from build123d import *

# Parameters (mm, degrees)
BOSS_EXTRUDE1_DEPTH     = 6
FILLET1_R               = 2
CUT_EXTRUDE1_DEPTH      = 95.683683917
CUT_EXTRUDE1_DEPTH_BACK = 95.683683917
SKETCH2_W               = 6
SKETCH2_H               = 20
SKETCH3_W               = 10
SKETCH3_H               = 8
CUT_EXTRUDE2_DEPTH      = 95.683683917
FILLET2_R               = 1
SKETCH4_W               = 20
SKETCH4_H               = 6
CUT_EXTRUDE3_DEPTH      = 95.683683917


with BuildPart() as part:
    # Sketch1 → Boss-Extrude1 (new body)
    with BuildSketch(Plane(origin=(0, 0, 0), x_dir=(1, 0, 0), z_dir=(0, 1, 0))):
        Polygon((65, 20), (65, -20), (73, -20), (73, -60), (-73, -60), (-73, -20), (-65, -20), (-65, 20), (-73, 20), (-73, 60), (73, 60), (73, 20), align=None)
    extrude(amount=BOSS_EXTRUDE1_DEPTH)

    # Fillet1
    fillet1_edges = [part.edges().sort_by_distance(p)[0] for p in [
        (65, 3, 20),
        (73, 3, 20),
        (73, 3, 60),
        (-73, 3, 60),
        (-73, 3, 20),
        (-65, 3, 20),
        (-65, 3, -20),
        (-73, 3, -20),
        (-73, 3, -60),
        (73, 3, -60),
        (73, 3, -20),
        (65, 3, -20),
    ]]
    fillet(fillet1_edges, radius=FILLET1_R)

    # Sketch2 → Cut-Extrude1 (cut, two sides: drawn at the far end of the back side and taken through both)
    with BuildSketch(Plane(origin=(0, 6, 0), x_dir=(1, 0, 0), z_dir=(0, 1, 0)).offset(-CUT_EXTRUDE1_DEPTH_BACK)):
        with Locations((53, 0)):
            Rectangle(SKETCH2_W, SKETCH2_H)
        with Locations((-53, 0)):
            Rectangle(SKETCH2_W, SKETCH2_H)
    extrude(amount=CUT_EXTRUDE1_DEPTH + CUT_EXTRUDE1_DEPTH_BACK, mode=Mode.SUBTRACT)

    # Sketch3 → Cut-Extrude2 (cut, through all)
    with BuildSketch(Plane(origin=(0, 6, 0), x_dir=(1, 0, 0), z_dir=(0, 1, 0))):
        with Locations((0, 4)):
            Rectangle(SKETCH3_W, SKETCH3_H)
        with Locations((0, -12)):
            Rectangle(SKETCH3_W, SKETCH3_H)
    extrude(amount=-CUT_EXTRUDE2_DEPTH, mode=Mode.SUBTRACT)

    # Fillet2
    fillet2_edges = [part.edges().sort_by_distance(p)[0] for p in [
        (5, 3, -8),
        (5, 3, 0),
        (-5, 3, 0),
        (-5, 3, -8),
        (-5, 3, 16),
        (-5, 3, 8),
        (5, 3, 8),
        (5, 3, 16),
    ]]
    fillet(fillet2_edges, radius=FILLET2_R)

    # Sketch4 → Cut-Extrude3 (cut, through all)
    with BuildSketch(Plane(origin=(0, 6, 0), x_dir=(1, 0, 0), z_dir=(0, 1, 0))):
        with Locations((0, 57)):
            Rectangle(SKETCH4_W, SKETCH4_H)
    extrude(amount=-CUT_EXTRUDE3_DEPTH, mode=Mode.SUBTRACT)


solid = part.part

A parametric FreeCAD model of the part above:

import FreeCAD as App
import Part
import Sketcher

V = App.Vector
Q = App.Units.Quantity


def edges_at(feature, points):
    """Names of the edges that pass closest to the given points."""
    edges = feature.Shape.Edges
    near = lambda p: min(range(len(edges)), key=lambda i: edges[i].distToShape(Part.Vertex(*p))[0])
    return sorted({f"Edge{near(p) + 1}" for p in points})


def add_polygon(sketch, points):
    """Adds a closed chain of lines whose ends are joined by coincident constraints."""
    first, n = sketch.GeometryCount, len(points)
    for a, b in zip(points, points[1:] + points[:1]):
        sketch.addGeometry(Part.LineSegment(App.Vector(*a, 0), App.Vector(*b, 0)), False)
    for i in range(n):
        sketch.addConstraint(Sketcher.Constraint("Coincident", first + i, 2, first + (i + 1) % n, 1))

doc = App.newDocument("Part")
params = doc.addObject("Spreadsheet::Sheet", "Params")
for row, (alias, value) in enumerate([
    ("sketch1_width", "8 mm"),
    ("sketch1_width2", "146 mm"),
    ("sketch1_height", "40 mm"),
    ("pad1_length", "6 mm"),
    ("fillet_radius", "2 mm"),
    ("sketch2_width", "6 mm"),
    ("sketch2_height", "20 mm"),
    ("sketch3_width", "10 mm"),
    ("sketch3_height", "8 mm"),
    ("fillet2_radius", "1 mm"),
    ("sketch4_width", "20 mm"),
    ("sketch4_height", "6 mm"),
], start=1):
    params.set(f"A{row}", alias)
    params.set(f"B{row}", "=" + value)
    params.setAlias(f"B{row}", alias)

body = doc.addObject("PartDesign::Body", "Body")

# Sketch on XZ plane
sketch1 = body.newObject("Sketcher::SketchObject", "Sketch")
sketch1.AttachmentSupport = (doc.getObject("XZ_Plane"), [""])
sketch1.MapMode = "FlatFace"
add_polygon(sketch1, [(65, 20), (65, -20), (73, -20), (73, -60), (-73, -60), (-73, -20), (-65, -20), (-65, 20), (-73, 20), (-73, 60), (73, 60), (73, 20)])  # lines 0-11
sketch1.addConstraint([
    Sketcher.Constraint("Vertical", 0),
    Sketcher.Constraint("Horizontal", 1),
    Sketcher.Constraint("Vertical", 2),
    Sketcher.Constraint("Horizontal", 3),
    Sketcher.Constraint("Vertical", 4),
    Sketcher.Constraint("Horizontal", 5),
    Sketcher.Constraint("Vertical", 6),
    Sketcher.Constraint("Horizontal", 7),
    Sketcher.Constraint("Vertical", 8),
    Sketcher.Constraint("Horizontal", 9),
    Sketcher.Constraint("Vertical", 10),
    Sketcher.Constraint("Horizontal", 11),
    Sketcher.Constraint("Symmetric", 0, 2, 6, 2, -1, 1),
    Sketcher.Constraint("Symmetric", 2, 2, 8, 2, -1, 1),
    Sketcher.Constraint("Symmetric", 4, 2, 10, 2, -1, 1),
    Sketcher.Constraint("Symmetric", 1, 2, 4, 2, -2),
    Sketcher.Constraint("Equal", 0, 2),
    Sketcher.Constraint("DistanceX", 1, 1, 1, 2, Q("8 mm")),
    Sketcher.Constraint("DistanceX", 3, 2, 3, 1, Q("146 mm")),
    Sketcher.Constraint("DistanceY", 0, 2, 0, 1, Q("40 mm")),
])
sketch1.setExpression("Constraints[29]", "Params.sketch1_width")
sketch1.setExpression("Constraints[30]", "Params.sketch1_width2")
sketch1.setExpression("Constraints[31]", "Params.sketch1_height")
pad1 = body.newObject("PartDesign::Pad", "Pad")
pad1.Profile = sketch1
pad1.setExpression("Length", "Params.pad1_length")
pad1.Reversed = True
doc.recompute()

fillet = body.newObject("PartDesign::Fillet", "Fillet")
fillet.Base = (pad1, edges_at(pad1, [
    (65, 3, 20),
    (73, 3, 20),
    (73, 3, 60),
    (-73, 3, 60),
    (-73, 3, 20),
    (-65, 3, 20),
    (-65, 3, -20),
    (-73, 3, -20),
    (-73, 3, -60),
    (73, 3, -60),
    (73, 3, -20),
    (65, 3, -20),
]))
fillet.setExpression("Radius", "Params.fillet_radius")

# Sketch on XZ plane
sketch2 = body.newObject("Sketcher::SketchObject", "Sketch001")
sketch2.AttachmentSupport = (doc.getObject("XZ_Plane"), [""])
sketch2.MapMode = "FlatFace"
sketch2.AttachmentOffset = App.Placement(V(0, 0, -6), App.Rotation())
add_polygon(sketch2, [(50, -10), (50, 10), (56, 10), (56, -10)])  # lines 0-3
add_polygon(sketch2, [(-56, -10), (-56, 10), (-50, 10), (-50, -10)])  # lines 4-7
sketch2.addConstraint([
    Sketcher.Constraint("Vertical", 0),
    Sketcher.Constraint("Horizontal", 1),
    Sketcher.Constraint("Vertical", 2),
    Sketcher.Constraint("Horizontal", 3),
    Sketcher.Constraint("Vertical", 4),
    Sketcher.Constraint("Horizontal", 5),
    Sketcher.Constraint("Vertical", 6),
    Sketcher.Constraint("Horizontal", 7),
    Sketcher.Constraint("Symmetric", 2, 2, 4, 2, -1, 1),
    Sketcher.Constraint("Symmetric", 0, 2, 6, 2, -1, 1),
    Sketcher.Constraint("Horizontal", 1, 2, 4, 2),
    Sketcher.Constraint("DistanceX", 1, 1, 1, 2, Q("6 mm")),
    Sketcher.Constraint("DistanceY", 0, 1, 0, 2, Q("20 mm")),
    Sketcher.Constraint("DistanceX", -1, 1, 0, 2, Q("50 mm")),
])
sketch2.setExpression("Constraints[19]", "Params.sketch2_width")
sketch2.setExpression("Constraints[20]", "Params.sketch2_height")
pocket1 = body.newObject("PartDesign::Pocket", "Pocket")
pocket1.Profile = sketch2
pocket1.Type = "ThroughAll"
pocket1.Midplane = True

# Sketch on XZ plane
sketch3 = body.newObject("Sketcher::SketchObject", "Sketch002")
sketch3.AttachmentSupport = (doc.getObject("XZ_Plane"), [""])
sketch3.MapMode = "FlatFace"
sketch3.AttachmentOffset = App.Placement(V(0, 0, -6), App.Rotation())
add_polygon(sketch3, [(-5, -8), (-5, 0), (5, 0), (5, -8)])  # lines 0-3
add_polygon(sketch3, [(-5, 8), (-5, 16), (5, 16), (5, 8)])  # lines 4-7
sketch3.addConstraint([
    Sketcher.Constraint("Vertical", 0),
    Sketcher.Constraint("Horizontal", 1),
    Sketcher.Constraint("Vertical", 2),
    Sketcher.Constraint("Horizontal", 3),
    Sketcher.Constraint("Vertical", 4),
    Sketcher.Constraint("Horizontal", 5),
    Sketcher.Constraint("Vertical", 6),
    Sketcher.Constraint("Horizontal", 7),
    Sketcher.Constraint("Symmetric", 0, 2, 1, 2, -1, 1),
    Sketcher.Constraint("Symmetric", 3, 2, 6, 2, -1, 1),
    Sketcher.Constraint("Vertical", 3, 2, 4, 2),
    Sketcher.Constraint("Equal", 2, 4),
    Sketcher.Constraint("DistanceX", 1, 1, 1, 2, Q("10 mm")),
    Sketcher.Constraint("DistanceY", 0, 1, 0, 2, Q("8 mm")),
])
sketch3.setExpression("Constraints[20]", "Params.sketch3_width")
sketch3.setExpression("Constraints[21]", "Params.sketch3_height")
pocket2 = body.newObject("PartDesign::Pocket", "Pocket001")
pocket2.Profile = sketch3
pocket2.Type = "ThroughAll"
pocket2.Reversed = True
doc.recompute()

fillet2 = body.newObject("PartDesign::Fillet", "Fillet001")
fillet2.Base = (pocket2, edges_at(pocket2, [
    (5, 3, -8),
    (5, 3, 0),
    (-5, 3, 0),
    (-5, 3, -8),
    (-5, 3, 16),
    (-5, 3, 8),
    (5, 3, 8),
    (5, 3, 16),
]))
fillet2.setExpression("Radius", "Params.fillet2_radius")

# Sketch on XZ plane
sketch4 = body.newObject("Sketcher::SketchObject", "Sketch003")
sketch4.AttachmentSupport = (doc.getObject("XZ_Plane"), [""])
sketch4.MapMode = "FlatFace"
sketch4.AttachmentOffset = App.Placement(V(0, 0, -6), App.Rotation())
add_polygon(sketch4, [(-10, -60), (-10, -54), (10, -54), (10, -60)])  # lines 0-3
sketch4.addConstraint([
    Sketcher.Constraint("Vertical", 0),
    Sketcher.Constraint("Horizontal", 1),
    Sketcher.Constraint("Vertical", 2),
    Sketcher.Constraint("Horizontal", 3),
    Sketcher.Constraint("DistanceX", 1, 1, 1, 2, Q("20 mm")),
    Sketcher.Constraint("DistanceY", 0, 1, 0, 2, Q("6 mm")),
    Sketcher.Constraint("DistanceX", 0, 2, -1, 1, Q("10 mm")),
    Sketcher.Constraint("DistanceY", 0, 2, -1, 1, Q("54 mm")),
])
sketch4.setExpression("Constraints[8]", "Params.sketch4_width")
sketch4.setExpression("Constraints[9]", "Params.sketch4_height")
pocket3 = body.newObject("PartDesign::Pocket", "Pocket002")
pocket3.Profile = sketch4
pocket3.Type = "ThroughAll"
pocket3.Reversed = True

doc.recompute()
